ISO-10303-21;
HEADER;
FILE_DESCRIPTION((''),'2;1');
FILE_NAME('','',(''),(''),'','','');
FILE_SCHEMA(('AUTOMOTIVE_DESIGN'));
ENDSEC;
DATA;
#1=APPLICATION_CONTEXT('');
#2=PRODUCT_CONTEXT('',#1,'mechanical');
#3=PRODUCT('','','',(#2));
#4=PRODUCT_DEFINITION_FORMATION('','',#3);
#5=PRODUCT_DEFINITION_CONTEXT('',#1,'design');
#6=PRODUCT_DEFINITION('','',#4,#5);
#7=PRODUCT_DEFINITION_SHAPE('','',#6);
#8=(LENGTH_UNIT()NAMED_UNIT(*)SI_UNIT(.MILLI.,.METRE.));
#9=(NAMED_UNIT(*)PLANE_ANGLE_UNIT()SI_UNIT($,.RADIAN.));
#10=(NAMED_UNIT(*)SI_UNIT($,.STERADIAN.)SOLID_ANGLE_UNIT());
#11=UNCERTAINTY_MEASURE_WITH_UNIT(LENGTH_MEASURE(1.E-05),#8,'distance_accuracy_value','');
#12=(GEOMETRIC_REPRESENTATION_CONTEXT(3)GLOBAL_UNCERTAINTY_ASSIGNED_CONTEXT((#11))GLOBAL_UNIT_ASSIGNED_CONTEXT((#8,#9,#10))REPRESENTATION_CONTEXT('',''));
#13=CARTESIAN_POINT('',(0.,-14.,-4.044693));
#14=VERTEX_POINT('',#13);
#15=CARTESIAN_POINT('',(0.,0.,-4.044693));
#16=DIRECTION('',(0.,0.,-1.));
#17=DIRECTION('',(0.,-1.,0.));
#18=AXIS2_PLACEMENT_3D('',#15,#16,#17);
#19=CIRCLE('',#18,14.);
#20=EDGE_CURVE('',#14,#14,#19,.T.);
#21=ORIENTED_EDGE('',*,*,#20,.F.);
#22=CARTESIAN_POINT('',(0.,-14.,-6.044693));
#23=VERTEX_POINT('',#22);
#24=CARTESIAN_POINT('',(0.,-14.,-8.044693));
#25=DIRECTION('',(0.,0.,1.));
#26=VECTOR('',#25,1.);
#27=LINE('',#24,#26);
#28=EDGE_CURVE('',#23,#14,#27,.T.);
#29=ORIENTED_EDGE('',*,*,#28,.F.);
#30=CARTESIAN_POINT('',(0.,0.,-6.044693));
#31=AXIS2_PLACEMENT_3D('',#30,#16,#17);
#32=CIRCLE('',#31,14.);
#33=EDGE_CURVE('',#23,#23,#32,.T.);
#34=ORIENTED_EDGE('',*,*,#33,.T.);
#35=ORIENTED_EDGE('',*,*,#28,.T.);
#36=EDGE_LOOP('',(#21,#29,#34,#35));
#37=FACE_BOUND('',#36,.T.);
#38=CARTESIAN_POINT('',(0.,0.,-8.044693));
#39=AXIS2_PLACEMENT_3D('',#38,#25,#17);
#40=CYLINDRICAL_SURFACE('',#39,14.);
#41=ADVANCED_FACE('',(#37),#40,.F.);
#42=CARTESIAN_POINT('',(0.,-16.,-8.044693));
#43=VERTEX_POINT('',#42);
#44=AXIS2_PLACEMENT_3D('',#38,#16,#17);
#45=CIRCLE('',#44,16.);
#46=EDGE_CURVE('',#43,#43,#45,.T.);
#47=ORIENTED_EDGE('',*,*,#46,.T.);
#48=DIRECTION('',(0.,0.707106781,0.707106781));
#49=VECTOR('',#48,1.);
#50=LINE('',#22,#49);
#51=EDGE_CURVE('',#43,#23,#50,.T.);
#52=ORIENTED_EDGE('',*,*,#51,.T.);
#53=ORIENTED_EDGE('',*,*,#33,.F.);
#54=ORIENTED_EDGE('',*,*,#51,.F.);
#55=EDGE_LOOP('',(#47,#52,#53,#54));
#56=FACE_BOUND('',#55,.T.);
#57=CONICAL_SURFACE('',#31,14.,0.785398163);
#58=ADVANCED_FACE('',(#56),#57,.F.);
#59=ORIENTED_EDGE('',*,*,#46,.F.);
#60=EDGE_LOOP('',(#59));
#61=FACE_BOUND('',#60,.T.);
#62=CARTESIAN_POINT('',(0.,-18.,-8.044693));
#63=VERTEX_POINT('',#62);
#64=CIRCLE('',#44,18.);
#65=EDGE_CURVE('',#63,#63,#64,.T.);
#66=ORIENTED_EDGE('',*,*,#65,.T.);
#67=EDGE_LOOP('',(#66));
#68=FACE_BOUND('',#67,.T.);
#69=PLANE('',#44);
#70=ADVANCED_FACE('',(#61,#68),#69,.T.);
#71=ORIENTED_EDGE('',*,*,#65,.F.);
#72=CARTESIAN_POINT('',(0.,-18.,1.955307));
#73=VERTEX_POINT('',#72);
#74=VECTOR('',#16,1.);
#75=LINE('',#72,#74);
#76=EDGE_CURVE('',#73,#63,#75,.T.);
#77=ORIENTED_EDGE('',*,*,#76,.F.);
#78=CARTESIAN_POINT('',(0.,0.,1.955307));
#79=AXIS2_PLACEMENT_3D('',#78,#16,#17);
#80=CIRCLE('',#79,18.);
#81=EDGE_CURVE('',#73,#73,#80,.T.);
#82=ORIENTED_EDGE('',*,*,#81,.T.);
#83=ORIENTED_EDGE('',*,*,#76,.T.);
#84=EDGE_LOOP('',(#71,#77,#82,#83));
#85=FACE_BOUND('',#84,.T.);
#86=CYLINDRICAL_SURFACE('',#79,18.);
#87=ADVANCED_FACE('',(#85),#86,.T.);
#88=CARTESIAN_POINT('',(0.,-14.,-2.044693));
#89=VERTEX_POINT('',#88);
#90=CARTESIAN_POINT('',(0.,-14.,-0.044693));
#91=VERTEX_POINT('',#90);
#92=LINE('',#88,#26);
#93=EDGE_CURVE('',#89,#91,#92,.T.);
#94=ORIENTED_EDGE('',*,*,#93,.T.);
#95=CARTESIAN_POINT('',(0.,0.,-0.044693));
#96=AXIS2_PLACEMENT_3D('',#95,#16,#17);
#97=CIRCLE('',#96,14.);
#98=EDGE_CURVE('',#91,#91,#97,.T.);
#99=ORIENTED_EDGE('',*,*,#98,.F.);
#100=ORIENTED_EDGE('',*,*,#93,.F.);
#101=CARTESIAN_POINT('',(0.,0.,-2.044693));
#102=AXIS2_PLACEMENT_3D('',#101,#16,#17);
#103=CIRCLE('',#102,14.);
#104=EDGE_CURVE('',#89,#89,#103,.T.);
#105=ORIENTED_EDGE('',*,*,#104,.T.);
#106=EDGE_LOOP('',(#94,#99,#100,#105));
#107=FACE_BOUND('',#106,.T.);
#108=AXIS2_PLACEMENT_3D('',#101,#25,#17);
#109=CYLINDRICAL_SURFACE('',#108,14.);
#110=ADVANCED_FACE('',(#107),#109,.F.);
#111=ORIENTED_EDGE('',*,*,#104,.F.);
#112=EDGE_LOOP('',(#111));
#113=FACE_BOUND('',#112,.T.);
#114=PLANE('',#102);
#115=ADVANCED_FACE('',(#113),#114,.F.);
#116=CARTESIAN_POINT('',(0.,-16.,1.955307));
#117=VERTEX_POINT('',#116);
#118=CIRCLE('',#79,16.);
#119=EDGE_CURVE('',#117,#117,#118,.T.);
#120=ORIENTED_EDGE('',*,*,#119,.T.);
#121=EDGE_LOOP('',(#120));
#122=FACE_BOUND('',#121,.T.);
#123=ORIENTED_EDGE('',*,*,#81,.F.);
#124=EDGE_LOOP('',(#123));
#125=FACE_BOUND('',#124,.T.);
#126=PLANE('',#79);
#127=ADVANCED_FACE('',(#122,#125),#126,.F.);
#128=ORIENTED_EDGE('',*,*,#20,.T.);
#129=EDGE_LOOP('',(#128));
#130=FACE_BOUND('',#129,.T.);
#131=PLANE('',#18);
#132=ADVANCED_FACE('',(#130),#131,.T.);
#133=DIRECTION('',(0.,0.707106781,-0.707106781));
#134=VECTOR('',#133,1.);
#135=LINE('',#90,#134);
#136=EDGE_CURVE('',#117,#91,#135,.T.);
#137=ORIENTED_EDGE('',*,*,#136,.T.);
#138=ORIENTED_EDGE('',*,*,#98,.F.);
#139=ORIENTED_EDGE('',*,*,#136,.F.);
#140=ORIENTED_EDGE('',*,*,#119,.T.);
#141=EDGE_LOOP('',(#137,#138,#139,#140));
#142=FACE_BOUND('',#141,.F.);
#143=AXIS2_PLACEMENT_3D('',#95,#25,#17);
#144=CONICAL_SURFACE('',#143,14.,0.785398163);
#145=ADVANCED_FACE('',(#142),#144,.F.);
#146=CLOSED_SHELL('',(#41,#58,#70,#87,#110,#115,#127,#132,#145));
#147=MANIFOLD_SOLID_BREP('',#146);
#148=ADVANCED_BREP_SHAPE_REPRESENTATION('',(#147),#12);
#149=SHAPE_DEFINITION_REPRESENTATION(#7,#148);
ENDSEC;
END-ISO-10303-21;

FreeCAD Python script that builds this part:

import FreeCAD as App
import Part
import Sketcher

V = App.Vector


def edges_at(feature, points):
    """Names of the edges that pass closest to the given points."""
    edges = feature.Shape.Edges
    near = lambda p: min(range(len(edges)), key=lambda i: edges[i].distToShape(Part.Vertex(*p))[0])
    return sorted({f"Edge{near(p) + 1}" for p in points})

doc = App.newDocument("Part")
body = doc.addObject("PartDesign::Body", "Body")

# Sketch on YZ plane
sketch1 = body.newObject("Sketcher::SketchObject", "Sketch")
sketch1.AttachmentSupport = (doc.getObject("YZ_Plane"), [""])
sketch1.MapMode = "FlatFace"
sketch1.addGeometry([
    Part.LineSegment(V(-14, 2, 0), V(-18, 2, 0)),  # 0
    Part.LineSegment(V(-18, 2, 0), V(-18, -8, 0)),  # 1
    Part.LineSegment(V(-18, -8, 0), V(-14, -8, 0)),  # 2
    Part.LineSegment(V(-14, -8, 0), V(-14, -4, 0)),  # 3
    Part.LineSegment(V(-14, -4, 0), V(0, -4, 0)),  # 4
    Part.LineSegment(V(0, -4, 0), V(0, -2, 0)),  # 5
    Part.LineSegment(V(0, -2, 0), V(-14, -2, 0)),  # 6
    Part.LineSegment(V(-14, -2, 0), V(-14, 2, 0)),  # 7
], False)
sketch1.addConstraint([
    Sketcher.Constraint("Coincident", 0, 2, 1, 1),
    Sketcher.Constraint("Coincident", 1, 2, 2, 1),
    Sketcher.Constraint("Coincident", 2, 2, 3, 1),
    Sketcher.Constraint("Coincident", 3, 2, 4, 1),
    Sketcher.Constraint("Coincident", 4, 2, 5, 1),
    Sketcher.Constraint("Coincident", 5, 2, 6, 1),
    Sketcher.Constraint("Coincident", 6, 2, 7, 1),
    Sketcher.Constraint("Coincident", 7, 2, 0, 1),
    Sketcher.Constraint("Horizontal", 0),
    Sketcher.Constraint("Vertical", 1),
    Sketcher.Constraint("Horizontal", 2),
    Sketcher.Constraint("Vertical", 3),
    Sketcher.Constraint("Horizontal", 4),
    Sketcher.Constraint("Vertical", 5),
    Sketcher.Constraint("Horizontal", 6),
    Sketcher.Constraint("Vertical", 7),
    Sketcher.Constraint("PointOnObject", 4, 2, -2),
    Sketcher.Constraint("Vertical", 3, 2, 6, 2),
    Sketcher.Constraint("Equal", 2, 3),
    Sketcher.Constraint("Equal", 3, 7),
    Sketcher.Constraint("DistanceX", 0, 2, 0, 1, 4.0),
    Sketcher.Constraint("DistanceX", 4, 1, 4, 2, 14.0),
    Sketcher.Constraint("DistanceY", 1, 2, 1, 1, 10.0),
    Sketcher.Constraint("DistanceY", -1, 1, 0, 2, 1.955307),
])
revolution = body.newObject("PartDesign::Revolution", "Revolution")
revolution.Profile = sketch1
revolution.ReferenceAxis = (sketch1, ["V_Axis"])
revolution.Angle = 360
doc.recompute()

chamfer = body.newObject("PartDesign::Chamfer", "Chamfer")
chamfer.Base = (revolution, edges_at(revolution, [(0, 14, 1.955), (0, 14, -8.045)]))
chamfer.Size = 2

doc.recompute()
